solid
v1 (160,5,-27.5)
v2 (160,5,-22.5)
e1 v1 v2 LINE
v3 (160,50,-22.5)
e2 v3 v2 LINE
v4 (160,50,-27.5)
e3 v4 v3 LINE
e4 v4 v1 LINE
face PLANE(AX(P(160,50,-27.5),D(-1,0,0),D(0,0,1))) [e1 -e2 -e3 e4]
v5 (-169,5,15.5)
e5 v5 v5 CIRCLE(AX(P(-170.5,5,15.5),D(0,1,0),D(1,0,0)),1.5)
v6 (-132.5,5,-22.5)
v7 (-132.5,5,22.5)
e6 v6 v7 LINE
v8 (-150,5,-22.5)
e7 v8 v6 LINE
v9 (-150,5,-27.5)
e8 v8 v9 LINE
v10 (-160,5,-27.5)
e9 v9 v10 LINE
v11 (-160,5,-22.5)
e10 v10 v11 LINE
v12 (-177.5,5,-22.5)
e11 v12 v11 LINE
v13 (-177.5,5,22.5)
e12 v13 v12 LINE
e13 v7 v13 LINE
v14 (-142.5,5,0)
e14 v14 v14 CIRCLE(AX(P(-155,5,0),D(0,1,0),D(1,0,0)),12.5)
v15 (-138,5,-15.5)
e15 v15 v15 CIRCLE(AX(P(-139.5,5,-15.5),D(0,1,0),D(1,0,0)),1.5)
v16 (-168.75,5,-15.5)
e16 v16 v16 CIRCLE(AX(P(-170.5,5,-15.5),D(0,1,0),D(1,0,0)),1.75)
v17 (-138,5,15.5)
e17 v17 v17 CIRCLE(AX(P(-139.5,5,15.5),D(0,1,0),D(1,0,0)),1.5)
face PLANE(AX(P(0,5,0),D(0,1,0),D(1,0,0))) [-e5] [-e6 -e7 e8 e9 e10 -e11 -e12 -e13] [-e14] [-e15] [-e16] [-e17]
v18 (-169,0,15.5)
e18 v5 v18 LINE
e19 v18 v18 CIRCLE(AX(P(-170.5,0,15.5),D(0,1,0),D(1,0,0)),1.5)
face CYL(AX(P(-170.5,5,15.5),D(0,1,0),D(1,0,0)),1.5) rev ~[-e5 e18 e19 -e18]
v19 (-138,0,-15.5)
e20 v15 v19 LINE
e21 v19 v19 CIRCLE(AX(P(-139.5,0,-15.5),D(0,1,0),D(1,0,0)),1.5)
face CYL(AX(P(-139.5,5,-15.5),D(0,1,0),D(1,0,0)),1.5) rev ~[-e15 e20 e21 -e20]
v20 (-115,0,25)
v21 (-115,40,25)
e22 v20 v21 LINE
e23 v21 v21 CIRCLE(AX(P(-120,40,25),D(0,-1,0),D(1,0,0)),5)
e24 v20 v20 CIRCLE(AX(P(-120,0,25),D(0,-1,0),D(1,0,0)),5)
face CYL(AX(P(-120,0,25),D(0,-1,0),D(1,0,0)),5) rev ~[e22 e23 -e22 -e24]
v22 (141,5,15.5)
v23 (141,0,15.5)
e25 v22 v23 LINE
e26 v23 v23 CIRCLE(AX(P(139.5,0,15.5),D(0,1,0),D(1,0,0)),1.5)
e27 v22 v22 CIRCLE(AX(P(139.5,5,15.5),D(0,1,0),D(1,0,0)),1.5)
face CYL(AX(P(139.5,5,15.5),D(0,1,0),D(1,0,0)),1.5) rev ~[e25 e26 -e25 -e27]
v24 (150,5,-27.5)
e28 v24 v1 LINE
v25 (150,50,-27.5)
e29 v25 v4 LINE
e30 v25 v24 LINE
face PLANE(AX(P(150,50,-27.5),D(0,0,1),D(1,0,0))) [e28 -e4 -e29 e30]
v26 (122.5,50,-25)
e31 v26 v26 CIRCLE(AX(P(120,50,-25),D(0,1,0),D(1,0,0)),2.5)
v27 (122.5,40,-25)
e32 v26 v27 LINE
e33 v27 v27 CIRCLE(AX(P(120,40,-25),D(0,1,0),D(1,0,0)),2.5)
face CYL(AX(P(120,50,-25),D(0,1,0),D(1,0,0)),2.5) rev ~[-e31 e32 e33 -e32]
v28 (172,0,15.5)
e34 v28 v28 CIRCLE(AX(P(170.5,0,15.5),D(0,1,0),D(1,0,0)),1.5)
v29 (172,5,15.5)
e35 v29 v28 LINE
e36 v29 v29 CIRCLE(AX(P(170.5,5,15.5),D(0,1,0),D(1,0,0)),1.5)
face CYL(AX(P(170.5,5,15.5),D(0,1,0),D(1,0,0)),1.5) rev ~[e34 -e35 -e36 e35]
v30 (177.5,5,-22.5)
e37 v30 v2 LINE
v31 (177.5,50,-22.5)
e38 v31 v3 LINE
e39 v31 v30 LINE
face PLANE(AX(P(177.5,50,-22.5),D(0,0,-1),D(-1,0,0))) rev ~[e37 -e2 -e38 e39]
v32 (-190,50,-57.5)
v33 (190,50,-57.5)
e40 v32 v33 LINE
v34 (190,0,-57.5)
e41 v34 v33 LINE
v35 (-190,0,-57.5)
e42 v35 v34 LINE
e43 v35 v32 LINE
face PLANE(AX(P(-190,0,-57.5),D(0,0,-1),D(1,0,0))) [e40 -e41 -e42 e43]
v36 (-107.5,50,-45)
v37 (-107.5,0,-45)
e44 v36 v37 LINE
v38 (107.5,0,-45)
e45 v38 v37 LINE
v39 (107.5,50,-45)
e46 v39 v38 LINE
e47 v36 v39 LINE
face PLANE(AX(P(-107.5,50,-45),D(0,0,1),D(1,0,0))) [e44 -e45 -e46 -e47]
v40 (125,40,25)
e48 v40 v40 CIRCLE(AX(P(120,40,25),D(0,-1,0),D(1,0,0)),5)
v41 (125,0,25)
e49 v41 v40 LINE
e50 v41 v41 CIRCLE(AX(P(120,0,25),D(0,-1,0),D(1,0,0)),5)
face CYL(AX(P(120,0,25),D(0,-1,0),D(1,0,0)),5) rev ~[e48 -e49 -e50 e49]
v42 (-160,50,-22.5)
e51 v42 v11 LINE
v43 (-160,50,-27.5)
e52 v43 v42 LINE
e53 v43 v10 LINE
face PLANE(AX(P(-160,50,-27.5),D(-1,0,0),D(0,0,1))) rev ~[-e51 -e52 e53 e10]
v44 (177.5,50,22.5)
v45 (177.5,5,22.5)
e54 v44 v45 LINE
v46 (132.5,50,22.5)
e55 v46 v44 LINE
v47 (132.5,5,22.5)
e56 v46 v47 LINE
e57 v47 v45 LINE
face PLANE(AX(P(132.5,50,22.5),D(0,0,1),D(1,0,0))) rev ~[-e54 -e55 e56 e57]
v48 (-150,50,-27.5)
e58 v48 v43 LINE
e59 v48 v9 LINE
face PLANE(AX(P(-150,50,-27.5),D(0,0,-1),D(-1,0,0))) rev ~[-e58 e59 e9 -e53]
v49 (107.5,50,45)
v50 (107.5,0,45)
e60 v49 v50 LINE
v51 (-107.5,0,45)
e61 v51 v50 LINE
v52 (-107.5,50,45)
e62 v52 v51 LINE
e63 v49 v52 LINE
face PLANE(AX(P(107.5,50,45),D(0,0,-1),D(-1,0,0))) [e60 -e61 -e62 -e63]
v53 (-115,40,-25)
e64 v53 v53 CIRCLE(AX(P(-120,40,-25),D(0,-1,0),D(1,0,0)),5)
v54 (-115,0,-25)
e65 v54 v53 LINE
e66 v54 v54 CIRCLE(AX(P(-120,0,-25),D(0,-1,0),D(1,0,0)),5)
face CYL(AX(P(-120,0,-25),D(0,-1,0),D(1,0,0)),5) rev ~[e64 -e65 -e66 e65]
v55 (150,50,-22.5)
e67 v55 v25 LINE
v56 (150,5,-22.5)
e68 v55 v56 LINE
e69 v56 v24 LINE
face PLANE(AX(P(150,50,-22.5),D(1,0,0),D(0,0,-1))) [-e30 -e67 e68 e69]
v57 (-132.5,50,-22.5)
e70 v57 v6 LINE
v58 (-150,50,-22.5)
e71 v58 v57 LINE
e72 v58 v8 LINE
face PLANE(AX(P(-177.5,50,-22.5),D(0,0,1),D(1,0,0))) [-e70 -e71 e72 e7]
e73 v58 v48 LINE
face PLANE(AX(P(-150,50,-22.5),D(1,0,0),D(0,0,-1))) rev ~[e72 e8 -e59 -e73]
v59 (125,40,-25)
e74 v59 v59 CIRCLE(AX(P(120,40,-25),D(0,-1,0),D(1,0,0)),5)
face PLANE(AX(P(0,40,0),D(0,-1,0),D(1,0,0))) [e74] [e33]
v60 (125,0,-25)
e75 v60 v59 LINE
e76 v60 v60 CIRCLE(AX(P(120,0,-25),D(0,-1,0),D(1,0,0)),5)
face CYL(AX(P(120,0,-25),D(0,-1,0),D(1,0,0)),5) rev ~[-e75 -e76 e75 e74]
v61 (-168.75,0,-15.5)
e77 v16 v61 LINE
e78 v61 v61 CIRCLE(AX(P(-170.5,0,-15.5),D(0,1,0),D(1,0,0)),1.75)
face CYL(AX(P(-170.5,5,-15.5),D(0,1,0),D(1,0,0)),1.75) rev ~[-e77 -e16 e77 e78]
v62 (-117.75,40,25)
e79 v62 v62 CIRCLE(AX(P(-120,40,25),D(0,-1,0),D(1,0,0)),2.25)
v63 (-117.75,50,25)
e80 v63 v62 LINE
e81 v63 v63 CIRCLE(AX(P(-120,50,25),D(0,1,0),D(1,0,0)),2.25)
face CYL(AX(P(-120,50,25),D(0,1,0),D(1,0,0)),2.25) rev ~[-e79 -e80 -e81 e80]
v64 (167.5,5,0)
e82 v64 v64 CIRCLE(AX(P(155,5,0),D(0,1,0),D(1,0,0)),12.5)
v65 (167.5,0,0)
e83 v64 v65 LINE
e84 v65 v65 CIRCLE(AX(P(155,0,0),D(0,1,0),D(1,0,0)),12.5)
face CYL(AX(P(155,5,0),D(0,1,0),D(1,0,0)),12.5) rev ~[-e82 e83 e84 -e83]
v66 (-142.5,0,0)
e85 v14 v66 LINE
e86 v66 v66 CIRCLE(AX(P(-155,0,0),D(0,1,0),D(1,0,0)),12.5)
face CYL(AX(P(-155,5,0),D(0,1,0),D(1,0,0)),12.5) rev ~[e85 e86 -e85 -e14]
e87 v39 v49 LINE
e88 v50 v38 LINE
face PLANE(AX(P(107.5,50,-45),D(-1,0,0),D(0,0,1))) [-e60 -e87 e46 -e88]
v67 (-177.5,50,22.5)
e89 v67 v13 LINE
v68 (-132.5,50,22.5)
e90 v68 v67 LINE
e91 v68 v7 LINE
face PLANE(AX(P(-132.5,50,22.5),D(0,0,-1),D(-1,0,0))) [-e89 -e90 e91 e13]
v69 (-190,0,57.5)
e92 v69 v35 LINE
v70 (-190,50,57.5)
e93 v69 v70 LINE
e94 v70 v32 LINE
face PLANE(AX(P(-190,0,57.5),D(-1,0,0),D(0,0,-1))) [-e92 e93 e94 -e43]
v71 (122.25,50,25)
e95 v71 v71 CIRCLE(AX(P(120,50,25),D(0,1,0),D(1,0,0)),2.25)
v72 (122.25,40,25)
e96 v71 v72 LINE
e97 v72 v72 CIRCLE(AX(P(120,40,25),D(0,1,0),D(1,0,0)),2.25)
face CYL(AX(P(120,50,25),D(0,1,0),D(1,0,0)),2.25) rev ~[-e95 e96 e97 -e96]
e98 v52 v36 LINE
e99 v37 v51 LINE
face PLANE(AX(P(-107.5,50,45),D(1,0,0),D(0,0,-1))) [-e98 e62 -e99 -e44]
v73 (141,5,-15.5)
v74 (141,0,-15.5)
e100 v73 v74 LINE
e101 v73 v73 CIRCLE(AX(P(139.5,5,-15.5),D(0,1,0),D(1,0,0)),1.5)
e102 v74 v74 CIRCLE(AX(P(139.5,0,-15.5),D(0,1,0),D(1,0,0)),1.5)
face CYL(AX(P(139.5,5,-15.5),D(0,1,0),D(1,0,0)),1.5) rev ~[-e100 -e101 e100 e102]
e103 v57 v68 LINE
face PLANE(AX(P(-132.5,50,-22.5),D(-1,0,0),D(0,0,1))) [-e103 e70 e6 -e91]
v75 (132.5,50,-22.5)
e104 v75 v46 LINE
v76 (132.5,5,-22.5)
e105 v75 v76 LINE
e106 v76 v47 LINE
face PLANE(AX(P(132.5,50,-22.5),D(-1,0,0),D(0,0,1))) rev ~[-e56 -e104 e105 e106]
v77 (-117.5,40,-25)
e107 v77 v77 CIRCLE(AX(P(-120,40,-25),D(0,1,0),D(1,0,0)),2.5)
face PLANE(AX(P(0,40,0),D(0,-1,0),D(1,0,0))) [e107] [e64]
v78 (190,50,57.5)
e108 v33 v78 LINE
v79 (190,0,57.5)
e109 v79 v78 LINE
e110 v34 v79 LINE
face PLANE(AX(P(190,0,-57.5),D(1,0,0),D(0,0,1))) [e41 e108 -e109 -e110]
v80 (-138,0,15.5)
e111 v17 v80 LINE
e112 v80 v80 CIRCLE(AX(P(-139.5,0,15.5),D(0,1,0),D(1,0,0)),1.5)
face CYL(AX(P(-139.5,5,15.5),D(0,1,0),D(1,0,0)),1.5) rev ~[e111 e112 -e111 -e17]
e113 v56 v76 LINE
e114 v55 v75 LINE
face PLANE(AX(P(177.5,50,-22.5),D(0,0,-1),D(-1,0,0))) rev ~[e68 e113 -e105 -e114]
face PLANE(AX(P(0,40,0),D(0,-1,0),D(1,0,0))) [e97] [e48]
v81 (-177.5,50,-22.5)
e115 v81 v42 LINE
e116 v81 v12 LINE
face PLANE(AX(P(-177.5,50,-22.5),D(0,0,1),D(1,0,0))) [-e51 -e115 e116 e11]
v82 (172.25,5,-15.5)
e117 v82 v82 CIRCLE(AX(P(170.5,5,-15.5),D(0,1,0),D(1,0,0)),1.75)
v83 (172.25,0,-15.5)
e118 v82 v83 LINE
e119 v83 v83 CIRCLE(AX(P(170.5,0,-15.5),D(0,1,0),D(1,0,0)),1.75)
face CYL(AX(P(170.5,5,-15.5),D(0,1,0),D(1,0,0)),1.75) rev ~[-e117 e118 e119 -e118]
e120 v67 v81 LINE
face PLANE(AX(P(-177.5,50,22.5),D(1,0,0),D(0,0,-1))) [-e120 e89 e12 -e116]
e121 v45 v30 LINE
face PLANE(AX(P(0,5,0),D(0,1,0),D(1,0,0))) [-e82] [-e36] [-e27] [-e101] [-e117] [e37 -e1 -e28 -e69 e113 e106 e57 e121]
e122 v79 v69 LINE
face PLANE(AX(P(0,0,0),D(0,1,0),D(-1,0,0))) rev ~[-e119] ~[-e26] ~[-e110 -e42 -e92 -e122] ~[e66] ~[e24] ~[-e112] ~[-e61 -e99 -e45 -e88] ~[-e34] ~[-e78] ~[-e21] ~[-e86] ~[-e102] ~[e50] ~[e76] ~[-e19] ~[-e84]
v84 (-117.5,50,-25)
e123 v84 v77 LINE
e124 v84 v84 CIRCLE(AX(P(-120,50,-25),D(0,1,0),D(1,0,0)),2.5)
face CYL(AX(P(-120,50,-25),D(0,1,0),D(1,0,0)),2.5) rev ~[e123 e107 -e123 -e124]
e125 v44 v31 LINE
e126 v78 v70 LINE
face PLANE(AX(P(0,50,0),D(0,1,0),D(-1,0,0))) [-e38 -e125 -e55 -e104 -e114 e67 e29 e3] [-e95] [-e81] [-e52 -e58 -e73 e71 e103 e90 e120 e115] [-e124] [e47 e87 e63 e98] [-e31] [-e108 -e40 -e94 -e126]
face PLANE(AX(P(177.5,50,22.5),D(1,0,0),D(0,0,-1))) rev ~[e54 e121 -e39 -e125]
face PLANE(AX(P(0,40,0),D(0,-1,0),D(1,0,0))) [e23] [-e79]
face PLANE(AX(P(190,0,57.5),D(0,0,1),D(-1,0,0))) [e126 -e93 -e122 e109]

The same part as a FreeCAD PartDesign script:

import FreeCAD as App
import Part
import Sketcher


def add_polygon(sketch, points):
    """Adds a closed chain of lines whose ends are joined by coincident constraints."""
    first, n = sketch.GeometryCount, len(points)
    for a, b in zip(points, points[1:] + points[:1]):
        sketch.addGeometry(Part.LineSegment(App.Vector(*a, 0), App.Vector(*b, 0)), False)
    for i in range(n):
        sketch.addConstraint(Sketcher.Constraint("Coincident", first + i, 2, first + (i + 1) % n, 1))

doc = App.newDocument("Part")
body = doc.addObject("PartDesign::Body", "Body")

sketch1 = body.newObject("Sketcher::SketchObject", "Sketch")
sketch1.AttachmentSupport = (doc.getObject("XZ_Plane"), [""])
sketch1.MapMode = "FlatFace"
add_polygon(sketch1, [(190, -58), (-190, -58), (-190, 58), (190, 58)])
sketch1.addConstraint(Sketcher.Constraint("Horizontal", 0))
sketch1.addConstraint(Sketcher.Constraint("Vertical", 1))
sketch1.addConstraint(Sketcher.Constraint("Horizontal", 2))
sketch1.addConstraint(Sketcher.Constraint("Vertical", 3))
sketch1.addConstraint(Sketcher.Constraint("Symmetric", 0, 2, 2, 2, -1, 1))
sketch1.addConstraint(Sketcher.Constraint("DistanceX", 0, 2, 0, 1, 380.0))
sketch1.addConstraint(Sketcher.Constraint("DistanceY", 1, 1, 1, 2, 115.0))
pad1 = body.newObject("PartDesign::Pad", "Pad")
pad1.Profile = sketch1
pad1.Length = 50
pad1.Reversed = True

sketch2 = body.newObject("Sketcher::SketchObject", "Sketch001")
sketch2.AttachmentSupport = (doc.getObject("XZ_Plane"), [""])
sketch2.MapMode = "FlatFace"
sketch2.AttachmentOffset = App.Placement(App.Vector(0, 0, -50), App.Rotation())
add_polygon(sketch2, [(-132, -22), (-178, -22), (-178, 22), (-132, 22)])
add_polygon(sketch2, [(178, 22), (178, -22), (132, -22), (132, 22)])
sketch2.addConstraint(Sketcher.Constraint("Horizontal", 0))
sketch2.addConstraint(Sketcher.Constraint("Vertical", 1))
sketch2.addConstraint(Sketcher.Constraint("Horizontal", 2))
sketch2.addConstraint(Sketcher.Constraint("Vertical", 3))
sketch2.addConstraint(Sketcher.Constraint("Vertical", 4))
sketch2.addConstraint(Sketcher.Constraint("Horizontal", 5))
sketch2.addConstraint(Sketcher.Constraint("Vertical", 6))
sketch2.addConstraint(Sketcher.Constraint("Horizontal", 7))
sketch2.addConstraint(Sketcher.Constraint("Symmetric", 1, 2, 4, 2, -1, 1))
sketch2.addConstraint(Sketcher.Constraint("Symmetric", 3, 2, 6, 2, -1, 1))
sketch2.addConstraint(Sketcher.Constraint("Horizontal", 3, 2, 4, 2))
sketch2.addConstraint(Sketcher.Constraint("Equal", 7, 1))
sketch2.addConstraint(Sketcher.Constraint("DistanceX", 0, 2, 0, 1, 45.0))
sketch2.addConstraint(Sketcher.Constraint("DistanceX", 3, 2, 4, 2, 310.0))
pocket1 = body.newObject("PartDesign::Pocket", "Pocket")
pocket1.Profile = sketch2
pocket1.Length = 45
pocket1.Reversed = True

sketch3 = body.newObject("Sketcher::SketchObject", "Sketch002")
sketch3.AttachmentSupport = (doc.getObject("XZ_Plane"), [""])
sketch3.MapMode = "FlatFace"
sketch3.AttachmentOffset = App.Placement(App.Vector(0, 0, -50), App.Rotation())
sketch3.addGeometry(Part.Circle(App.Vector(-120, -25, 0), App.Vector(0, 0, 1), 2.5), False)
sketch3.addGeometry(Part.Circle(App.Vector(-120, 25, 0), App.Vector(0, 0, 1), 2.2), False)
sketch3.addGeometry(Part.Circle(App.Vector(120, -25, 0), App.Vector(0, 0, 1), 2.5), False)
sketch3.addGeometry(Part.Circle(App.Vector(120, 25, 0), App.Vector(0, 0, 1), 2.2), False)
sketch3.addConstraint(Sketcher.Constraint("Equal", 0, 2))
sketch3.addConstraint(Sketcher.Constraint("Equal", 1, 3))
sketch3.addConstraint(Sketcher.Constraint("Symmetric", 1, 3, 2, 3, -1, 1))
sketch3.addConstraint(Sketcher.Constraint("Symmetric", 0, 3, 3, 3, -1, 1))
sketch3.addConstraint(Sketcher.Constraint("Symmetric", 0, 3, 2, 3, -2))
sketch3.addConstraint(Sketcher.Constraint("Diameter", 0, 5.0))
sketch3.addConstraint(Sketcher.Constraint("Diameter", 1, 4.5))
sketch3.addConstraint(Sketcher.Constraint("DistanceY", 0, 3, 1, 3, 50.0))
sketch3.addConstraint(Sketcher.Constraint("DistanceX", 0, 3, 2, 3, 240.0))
pocket2 = body.newObject("PartDesign::Pocket", "Pocket001")
pocket2.Profile = sketch3
pocket2.Type = "UpToFirst"
pocket2.Reversed = True

sketch4 = body.newObject("Sketcher::SketchObject", "Sketch003")
sketch4.AttachmentSupport = (doc.getObject("XZ_Plane"), [""])
sketch4.MapMode = "FlatFace"
sketch4.AttachmentOffset = App.Placement(App.Vector(0, 0, -50), App.Rotation())
add_polygon(sketch4, [(-108, 45), (108, 45), (108, -45), (-108, -45)])
sketch4.addConstraint(Sketcher.Constraint("Horizontal", 0))
sketch4.addConstraint(Sketcher.Constraint("Vertical", 1))
sketch4.addConstraint(Sketcher.Constraint("Horizontal", 2))
sketch4.addConstraint(Sketcher.Constraint("Vertical", 3))
sketch4.addConstraint(Sketcher.Constraint("Symmetric", 0, 2, 2, 2, -1, 1))
sketch4.addConstraint(Sketcher.Constraint("DistanceY", 1, 2, 1, 1, 90.0))
sketch4.addConstraint(Sketcher.Constraint("DistanceX", 0, 1, 0, 2, 215.0))
pocket3 = body.newObject("PartDesign::Pocket", "Pocket002")
pocket3.Profile = sketch4
pocket3.Type = "UpToFirst"
pocket3.Reversed = True

sketch5 = body.newObject("Sketcher::SketchObject", "Sketch004")
sketch5.AttachmentSupport = (doc.getObject("XZ_Plane"), [""])
sketch5.MapMode = "FlatFace"
sketch5.AttachmentOffset = App.Placement(App.Vector(0, 0, -5), App.Rotation())
sketch5.addGeometry(Part.Circle(App.Vector(155, 0, 0), App.Vector(0, 0, 1), 12), False)
sketch5.addGeometry(Part.Circle(App.Vector(-155, 0, 0), App.Vector(0, 0, 1), 12), False)
sketch5.addConstraint(Sketcher.Constraint("Equal", 0, 1))
sketch5.addConstraint(Sketcher.Constraint("Symmetric", 0, 3, 1, 3, -1, 1))
sketch5.addConstraint(Sketcher.Constraint("PointOnObject", 0, 3, -1))
sketch5.addConstraint(Sketcher.Constraint("Diameter", 0, 25.0))
sketch5.addConstraint(Sketcher.Constraint("DistanceX", -1, 1, 0, 3, 155.0))
pocket4 = body.newObject("PartDesign::Pocket", "Pocket003")
pocket4.Profile = sketch5
pocket4.Length = 5
pocket4.Reversed = True

sketch6 = body.newObject("Sketcher::SketchObject", "Sketch005")
sketch6.AttachmentSupport = (doc.getObject("XZ_Plane"), [""])
sketch6.MapMode = "FlatFace"
sketch6.AttachmentOffset = App.Placement(App.Vector(0, 0, -5), App.Rotation())
sketch6.addGeometry(Part.Circle(App.Vector(-170.5, -15.5, 0), App.Vector(0, 0, 1), 1.8), False)
sketch6.addGeometry(Part.Circle(App.Vector(-139.5, -15.5, 0), App.Vector(0, 0, 1), 1.5), False)
sketch6.addGeometry(Part.Circle(App.Vector(-170.5, 15.5, 0), App.Vector(0, 0, 1), 1.5), False)
sketch6.addGeometry(Part.Circle(App.Vector(-139.5, 15.5, 0), App.Vector(0, 0, 1), 1.5), False)
sketch6.addGeometry(Part.Circle(App.Vector(170.5, -15.5, 0), App.Vector(0, 0, 1), 1.8), False)
sketch6.addGeometry(Part.Circle(App.Vector(139.5, -15.5, 0), App.Vector(0, 0, 1), 1.5), False)
sketch6.addGeometry(Part.Circle(App.Vector(170.5, 15.5, 0), App.Vector(0, 0, 1), 1.5), False)
sketch6.addGeometry(Part.Circle(App.Vector(139.5, 15.5, 0), App.Vector(0, 0, 1), 1.5), False)
sketch6.addConstraint(Sketcher.Constraint("Equal", 1, 2))
sketch6.addConstraint(Sketcher.Constraint("Equal", 2, 3))
sketch6.addConstraint(Sketcher.Constraint("Equal", 0, 4))
sketch6.addConstraint(Sketcher.Constraint("Equal", 3, 5))
sketch6.addConstraint(Sketcher.Constraint("Equal", 5, 6))
sketch6.addConstraint(Sketcher.Constraint("Equal", 6, 7))
sketch6.addConstraint(Sketcher.Constraint("Symmetric", 2, 3, 4, 3, -1, 1))
sketch6.addConstraint(Sketcher.Constraint("Symmetric", 3, 3, 5, 3, -1, 1))
sketch6.addConstraint(Sketcher.Constraint("Symmetric", 0, 3, 6, 3, -1, 1))
sketch6.addConstraint(Sketcher.Constraint("Symmetric", 1, 3, 7, 3, -1, 1))
sketch6.addConstraint(Sketcher.Constraint("Symmetric", 0, 3, 4, 3, -2))
sketch6.addConstraint(Sketcher.Constraint("Symmetric", 1, 3, 5, 3, -2))
sketch6.addConstraint(Sketcher.Constraint("Horizontal", 0, 3, 1, 3))
sketch6.addConstraint(Sketcher.Constraint("Diameter", 1, 3.0))
sketch6.addConstraint(Sketcher.Constraint("Diameter", 0, 3.5))
sketch6.addConstraint(Sketcher.Constraint("DistanceX", 0, 3, 1, 3, 31.0))
sketch6.addConstraint(Sketcher.Constraint("DistanceY", 0, 3, 2, 3, 31.0))
sketch6.addConstraint(Sketcher.Constraint("DistanceX", 1, 3, 4, 3, 310.0))
pocket5 = body.newObject("PartDesign::Pocket", "Pocket004")
pocket5.Profile = sketch6
pocket5.Length = 5
pocket5.Reversed = True

sketch7 = body.newObject("Sketcher::SketchObject", "Sketch006")
sketch7.AttachmentSupport = (doc.getObject("XZ_Plane"), [""])
sketch7.MapMode = "FlatFace"
sketch7.AttachmentOffset = App.Placement(App.Vector(0, 0, -50), App.Rotation())
add_polygon(sketch7, [(-160, -28), (-160, -22), (-150, -22), (-150, -28)])
add_polygon(sketch7, [(150, -22), (160, -22), (160, -28), (150, -28)])
sketch7.addConstraint(Sketcher.Constraint("Vertical", 0))
sketch7.addConstraint(Sketcher.Constraint("Horizontal", 1))
sketch7.addConstraint(Sketcher.Constraint("Vertical", 2))
sketch7.addConstraint(Sketcher.Constraint("Horizontal", 3))
sketch7.addConstraint(Sketcher.Constraint("Horizontal", 4))
sketch7.addConstraint(Sketcher.Constraint("Vertical", 5))
sketch7.addConstraint(Sketcher.Constraint("Horizontal", 6))
sketch7.addConstraint(Sketcher.Constraint("Vertical", 7))
sketch7.addConstraint(Sketcher.Constraint("Symmetric", 0, 2, 4, 2, -2))
sketch7.addConstraint(Sketcher.Constraint("Symmetric", 2, 2, 6, 2, -2))
sketch7.addConstraint(Sketcher.Constraint("DistanceX", 1, 1, 1, 2, 10.0))
sketch7.addConstraint(Sketcher.Constraint("DistanceY", 0, 1, 0, 2, 5.0))
sketch7.addConstraint(Sketcher.Constraint("DistanceY", 0, 2, -1, 1, 22.5))
sketch7.addConstraint(Sketcher.Constraint("DistanceX", 0, 2, -1, 1, 160.0))
pocket6 = body.newObject("PartDesign::Pocket", "Pocket005")
pocket6.Profile = sketch7
pocket6.Length = 45
pocket6.Reversed = True

sketch8 = body.newObject("Sketcher::SketchObject", "Sketch007")
sketch8.AttachmentSupport = (doc.getObject("XZ_Plane"), [""])
sketch8.MapMode = "FlatFace"
sketch8.addGeometry(Part.Circle(App.Vector(-120, 25, 0), App.Vector(0, 0, 1), 5), False)
sketch8.addGeometry(Part.Circle(App.Vector(-120, 25, 0), App.Vector(0, 0, 1), 2.2), False)
sketch8.addGeometry(Part.Circle(App.Vector(-120, -25, 0), App.Vector(0, 0, 1), 5), False)
sketch8.addGeometry(Part.Circle(App.Vector(120, 25, 0), App.Vector(0, 0, 1), 5), False)
sketch8.addGeometry(Part.Circle(App.Vector(120, -25, 0), App.Vector(0, 0, 1), 5), False)
sketch8.addConstraint(Sketcher.Constraint("Coincident", 1, 3, 0, 3))
sketch8.addConstraint(Sketcher.Constraint("Equal", 0, 2))
sketch8.addConstraint(Sketcher.Constraint("Equal", 2, 3))
sketch8.addConstraint(Sketcher.Constraint("Equal", 3, 4))
sketch8.addConstraint(Sketcher.Constraint("Symmetric", 2, 3, 3, 3, -1, 1))
sketch8.addConstraint(Sketcher.Constraint("Symmetric", 0, 3, 4, 3, -1, 1))
sketch8.addConstraint(Sketcher.Constraint("Symmetric", 0, 3, 3, 3, -2))
sketch8.addConstraint(Sketcher.Constraint("Diameter", 0, 10.0))
sketch8.addConstraint(Sketcher.Constraint("Diameter", 1, 4.5))
sketch8.addConstraint(Sketcher.Constraint("DistanceX", 0, 3, -1, 1, 120.0))
sketch8.addConstraint(Sketcher.Constraint("DistanceY", -1, 1, 0, 3, 25.0))
pocket7 = body.newObject("PartDesign::Pocket", "Pocket006")
pocket7.Profile = sketch8
pocket7.Length = 40

doc.recompute()
